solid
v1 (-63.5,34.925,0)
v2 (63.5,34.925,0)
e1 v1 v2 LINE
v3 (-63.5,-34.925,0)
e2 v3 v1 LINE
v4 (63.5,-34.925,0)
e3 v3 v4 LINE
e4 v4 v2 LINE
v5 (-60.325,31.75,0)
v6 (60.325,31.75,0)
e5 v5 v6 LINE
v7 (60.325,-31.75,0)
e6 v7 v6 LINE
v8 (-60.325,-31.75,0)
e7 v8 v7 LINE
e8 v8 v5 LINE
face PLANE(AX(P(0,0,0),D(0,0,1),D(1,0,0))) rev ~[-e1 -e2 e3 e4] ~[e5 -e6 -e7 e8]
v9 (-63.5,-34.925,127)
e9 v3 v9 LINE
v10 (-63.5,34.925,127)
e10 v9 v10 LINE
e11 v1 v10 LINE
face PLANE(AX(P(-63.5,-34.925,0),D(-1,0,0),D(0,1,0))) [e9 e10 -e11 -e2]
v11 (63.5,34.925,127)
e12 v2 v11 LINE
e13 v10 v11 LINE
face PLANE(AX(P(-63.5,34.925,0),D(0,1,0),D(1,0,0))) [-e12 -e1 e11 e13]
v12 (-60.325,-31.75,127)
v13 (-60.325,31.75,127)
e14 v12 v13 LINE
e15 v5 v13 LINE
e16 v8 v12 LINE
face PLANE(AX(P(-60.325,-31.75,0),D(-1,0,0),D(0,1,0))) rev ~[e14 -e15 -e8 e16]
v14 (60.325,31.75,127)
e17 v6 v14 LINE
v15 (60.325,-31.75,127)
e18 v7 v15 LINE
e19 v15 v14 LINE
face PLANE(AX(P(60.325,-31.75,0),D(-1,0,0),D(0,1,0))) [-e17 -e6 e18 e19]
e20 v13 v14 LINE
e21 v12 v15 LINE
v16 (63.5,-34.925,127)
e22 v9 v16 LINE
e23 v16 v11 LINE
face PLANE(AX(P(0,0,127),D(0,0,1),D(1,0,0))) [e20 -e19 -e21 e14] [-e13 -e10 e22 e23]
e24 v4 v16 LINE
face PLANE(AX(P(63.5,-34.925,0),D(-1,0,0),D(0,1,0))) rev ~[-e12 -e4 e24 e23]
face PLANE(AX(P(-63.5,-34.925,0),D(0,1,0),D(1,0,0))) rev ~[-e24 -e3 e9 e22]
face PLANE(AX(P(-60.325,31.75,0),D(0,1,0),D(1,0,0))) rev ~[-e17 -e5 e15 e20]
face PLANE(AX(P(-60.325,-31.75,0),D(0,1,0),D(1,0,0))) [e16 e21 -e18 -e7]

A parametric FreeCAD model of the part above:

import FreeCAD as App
import Part
import Sketcher
from FreeCAD import Vector
Q = App.Units.Quantity


def add_polygon(sketch, points):
    """Adds a closed chain of lines whose ends are joined by coincident constraints."""
    first, n = sketch.GeometryCount, len(points)
    for a, b in zip(points, points[1:] + points[:1]):
        sketch.addGeometry(Part.LineSegment(App.Vector(*a, 0), App.Vector(*b, 0)), False)
    for i in range(n):
        sketch.addConstraint(Sketcher.Constraint("Coincident", first + i, 2, first + (i + 1) % n, 1))

doc = App.newDocument("Part")
params = doc.addObject("Spreadsheet::Sheet", "Params")
for row, (alias, value) in enumerate([
    ("sketch1_width", "5 in"),
    ("sketch1_height", "2.5 in"),
    ("sketch1_width2", "4.75 in"),
    ("sketch1_height2", "2.75 in"),
    ("pad1_length", "5 in"),
    ("pocket1_length", "1 in"),
], start=1):
    params.set(f"A{row}", alias)
    params.set(f"B{row}", "=" + value)
    params.setAlias(f"B{row}", alias)

body = doc.addObject("PartDesign::Body", "Body")

# Sketch on XY plane
sketch1 = body.newObject("Sketcher::SketchObject", "Sketch")
sketch1.AttachmentSupport = (doc.getObject("XY_Plane"), [""])
sketch1.MapMode = "FlatFace"
add_polygon(sketch1, [(-63.5, 34.925), (-63.5, -34.925), (63.5, -34.925), (63.5, 34.925)])  # lines 0-3
add_polygon(sketch1, [(60.325, -31.75), (-60.325, -31.75), (-60.325, 31.75), (60.325, 31.75)])  # lines 4-7
sketch1.addConstraint([
    Sketcher.Constraint("Vertical", 0),
    Sketcher.Constraint("Horizontal", 1),
    Sketcher.Constraint("Vertical", 2),
    Sketcher.Constraint("Horizontal", 3),
    Sketcher.Constraint("Horizontal", 4),
    Sketcher.Constraint("Vertical", 5),
    Sketcher.Constraint("Horizontal", 6),
    Sketcher.Constraint("Vertical", 7),
    Sketcher.Constraint("Symmetric", 0, 2, 2, 2, -1, 1),
    Sketcher.Constraint("Symmetric", 4, 2, 6, 2, -1, 1),
    Sketcher.Constraint("DistanceX", 1, 1, 1, 2, Q("5 in")),
    Sketcher.Constraint("DistanceY", 5, 1, 5, 2, Q("2.5 in")),
    Sketcher.Constraint("DistanceX", 4, 2, 4, 1, Q("4.75 in")),
    Sketcher.Constraint("DistanceY", 0, 2, 0, 1, Q("2.75 in")),
])
sketch1.setExpression("Constraints[18]", "Params.sketch1_width")
sketch1.setExpression("Constraints[19]", "Params.sketch1_height")
sketch1.setExpression("Constraints[20]", "Params.sketch1_width2")
sketch1.setExpression("Constraints[21]", "Params.sketch1_height2")
pad1 = body.newObject("PartDesign::Pad", "Pad")
pad1.Profile = sketch1
pad1.setExpression("Length", "Params.pad1_length")

# Sketch on YZ plane
sketch2 = body.newObject("Sketcher::SketchObject", "Sketch001")
sketch2.AttachmentSupport = (doc.getObject("YZ_Plane"), [""])
sketch2.MapMode = "FlatFace"
sketch2.addGeometry(Part.Circle(Vector(-17.673852, 52.945733, 0), Vector(0, 0, 1), 6.815082), False)
sketch2.addConstraint([
    Sketcher.Constraint("Diameter", 0, Q("13.630164 mm")),
    Sketcher.Constraint("DistanceX", 0, 3, -1, 1, Q("17.673852 mm")),
    Sketcher.Constraint("DistanceY", -1, 1, 0, 3, Q("52.945733 mm")),
])
pocket1 = body.newObject("PartDesign::Pocket", "Pocket")
pocket1.Profile = sketch2
pocket1.setExpression("Length", "Params.pocket1_length")

doc.recompute()
